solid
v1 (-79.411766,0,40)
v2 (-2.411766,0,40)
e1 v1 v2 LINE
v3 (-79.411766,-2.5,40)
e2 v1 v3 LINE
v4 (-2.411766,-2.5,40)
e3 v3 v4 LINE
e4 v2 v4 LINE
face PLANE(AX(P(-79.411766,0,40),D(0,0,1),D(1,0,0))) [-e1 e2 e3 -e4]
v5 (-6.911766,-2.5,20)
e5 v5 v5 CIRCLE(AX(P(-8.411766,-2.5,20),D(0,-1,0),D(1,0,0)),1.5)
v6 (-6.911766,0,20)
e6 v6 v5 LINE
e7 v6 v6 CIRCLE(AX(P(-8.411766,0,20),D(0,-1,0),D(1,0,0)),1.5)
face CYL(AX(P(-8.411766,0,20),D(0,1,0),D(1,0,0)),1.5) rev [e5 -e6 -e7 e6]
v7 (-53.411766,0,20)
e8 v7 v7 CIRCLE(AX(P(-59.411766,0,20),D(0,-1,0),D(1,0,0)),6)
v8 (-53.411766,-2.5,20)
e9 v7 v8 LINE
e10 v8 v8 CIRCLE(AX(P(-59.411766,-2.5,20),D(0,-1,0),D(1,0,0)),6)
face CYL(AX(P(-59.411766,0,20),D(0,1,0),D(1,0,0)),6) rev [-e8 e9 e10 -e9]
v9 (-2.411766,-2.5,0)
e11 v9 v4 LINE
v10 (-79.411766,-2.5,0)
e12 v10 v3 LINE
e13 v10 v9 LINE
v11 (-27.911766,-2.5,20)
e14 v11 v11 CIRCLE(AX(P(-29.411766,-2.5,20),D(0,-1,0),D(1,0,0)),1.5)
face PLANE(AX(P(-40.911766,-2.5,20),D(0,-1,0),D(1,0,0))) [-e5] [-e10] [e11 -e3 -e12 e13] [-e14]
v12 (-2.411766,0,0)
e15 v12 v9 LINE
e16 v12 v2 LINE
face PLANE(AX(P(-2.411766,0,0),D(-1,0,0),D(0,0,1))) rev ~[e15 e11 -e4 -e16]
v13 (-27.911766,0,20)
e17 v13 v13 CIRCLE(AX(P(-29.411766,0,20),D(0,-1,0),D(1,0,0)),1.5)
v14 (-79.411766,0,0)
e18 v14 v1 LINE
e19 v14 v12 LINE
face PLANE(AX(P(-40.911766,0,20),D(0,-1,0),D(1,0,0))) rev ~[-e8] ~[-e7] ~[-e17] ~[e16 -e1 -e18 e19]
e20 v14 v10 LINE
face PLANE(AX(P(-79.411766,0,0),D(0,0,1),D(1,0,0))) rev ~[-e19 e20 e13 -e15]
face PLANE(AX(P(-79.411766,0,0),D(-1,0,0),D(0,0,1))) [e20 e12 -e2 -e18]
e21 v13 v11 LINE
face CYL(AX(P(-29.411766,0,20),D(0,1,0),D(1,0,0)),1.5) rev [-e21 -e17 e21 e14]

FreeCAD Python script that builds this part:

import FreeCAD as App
import Part
import Sketcher
Q = App.Units.Quantity


def add_polygon(sketch, points):
    """Adds a closed chain of lines whose ends are joined by coincident constraints."""
    first, n = sketch.GeometryCount, len(points)
    for a, b in zip(points, points[1:] + points[:1]):
        sketch.addGeometry(Part.LineSegment(App.Vector(*a, 0), App.Vector(*b, 0)), False)
    for i in range(n):
        sketch.addConstraint(Sketcher.Constraint("Coincident", first + i, 2, first + (i + 1) % n, 1))

doc = App.newDocument("Part")
body = doc.addObject("PartDesign::Body", "Body")

# Sketch on XZ plane
sketch1 = body.newObject("Sketcher::SketchObject", "Sketch")
sketch1.AttachmentSupport = (doc.getObject("XZ_Plane"), [""])
sketch1.MapMode = "FlatFace"
add_polygon(sketch1, [(-79.4, 40), (-79.4, 0), (-2.4, 0), (-2.4, 40)])  # lines 0-3
sketch1.addGeometry(Part.Circle(App.Vector(-59.4, 20, 0), App.Vector(0, 0, 1), 6), False)  # 4
sketch1.addGeometry(Part.Circle(App.Vector(-29.4, 20, 0), App.Vector(0, 0, 1), 1.5), False)  # 5
sketch1.addGeometry(Part.Circle(App.Vector(-8.4, 20, 0), App.Vector(0, 0, 1), 1.5), False)  # 6
sketch1.addConstraint(Sketcher.Constraint("Vertical", 0))
sketch1.addConstraint(Sketcher.Constraint("Horizontal", 1))
sketch1.addConstraint(Sketcher.Constraint("Vertical", 2))
sketch1.addConstraint(Sketcher.Constraint("Horizontal", 3))
sketch1.addConstraint(Sketcher.Constraint("Equal", 5, 6))
sketch1.addConstraint(Sketcher.Constraint("PointOnObject", 0, 2, -1))
sketch1.addConstraint(Sketcher.Constraint("Horizontal", 4, 3, 5, 3))
sketch1.addConstraint(Sketcher.Constraint("Horizontal", 5, 3, 6, 3))
sketch1.addConstraint(Sketcher.Constraint("Diameter", 4, Q("12 mm")))
sketch1.addConstraint(Sketcher.Constraint("Diameter", 5, Q("3 mm")))
sketch1.addConstraint(Sketcher.Constraint("DistanceX", 1, 1, 1, 2, Q("77 mm")))
sketch1.addConstraint(Sketcher.Constraint("DistanceY", 0, 2, 0, 1, Q("40 mm")))
sketch1.addConstraint(Sketcher.Constraint("DistanceY", -1, 1, 4, 3, Q("20 mm")))
sketch1.addConstraint(Sketcher.Constraint("DistanceX", 4, 3, 5, 3, Q("30 mm")))
sketch1.addConstraint(Sketcher.Constraint("DistanceX", 5, 3, 6, 3, Q("21 mm")))
sketch1.addConstraint(Sketcher.Constraint("DistanceX", 0, 2, 4, 3, Q("20 mm")))
sketch1.addConstraint(Sketcher.Constraint("DistanceX", 4, 3, -1, 1, Q("59.411766 mm")))
pad1 = body.newObject("PartDesign::Pad", "Pad")
pad1.Profile = sketch1
pad1.Length = 2.5

doc.recompute()
